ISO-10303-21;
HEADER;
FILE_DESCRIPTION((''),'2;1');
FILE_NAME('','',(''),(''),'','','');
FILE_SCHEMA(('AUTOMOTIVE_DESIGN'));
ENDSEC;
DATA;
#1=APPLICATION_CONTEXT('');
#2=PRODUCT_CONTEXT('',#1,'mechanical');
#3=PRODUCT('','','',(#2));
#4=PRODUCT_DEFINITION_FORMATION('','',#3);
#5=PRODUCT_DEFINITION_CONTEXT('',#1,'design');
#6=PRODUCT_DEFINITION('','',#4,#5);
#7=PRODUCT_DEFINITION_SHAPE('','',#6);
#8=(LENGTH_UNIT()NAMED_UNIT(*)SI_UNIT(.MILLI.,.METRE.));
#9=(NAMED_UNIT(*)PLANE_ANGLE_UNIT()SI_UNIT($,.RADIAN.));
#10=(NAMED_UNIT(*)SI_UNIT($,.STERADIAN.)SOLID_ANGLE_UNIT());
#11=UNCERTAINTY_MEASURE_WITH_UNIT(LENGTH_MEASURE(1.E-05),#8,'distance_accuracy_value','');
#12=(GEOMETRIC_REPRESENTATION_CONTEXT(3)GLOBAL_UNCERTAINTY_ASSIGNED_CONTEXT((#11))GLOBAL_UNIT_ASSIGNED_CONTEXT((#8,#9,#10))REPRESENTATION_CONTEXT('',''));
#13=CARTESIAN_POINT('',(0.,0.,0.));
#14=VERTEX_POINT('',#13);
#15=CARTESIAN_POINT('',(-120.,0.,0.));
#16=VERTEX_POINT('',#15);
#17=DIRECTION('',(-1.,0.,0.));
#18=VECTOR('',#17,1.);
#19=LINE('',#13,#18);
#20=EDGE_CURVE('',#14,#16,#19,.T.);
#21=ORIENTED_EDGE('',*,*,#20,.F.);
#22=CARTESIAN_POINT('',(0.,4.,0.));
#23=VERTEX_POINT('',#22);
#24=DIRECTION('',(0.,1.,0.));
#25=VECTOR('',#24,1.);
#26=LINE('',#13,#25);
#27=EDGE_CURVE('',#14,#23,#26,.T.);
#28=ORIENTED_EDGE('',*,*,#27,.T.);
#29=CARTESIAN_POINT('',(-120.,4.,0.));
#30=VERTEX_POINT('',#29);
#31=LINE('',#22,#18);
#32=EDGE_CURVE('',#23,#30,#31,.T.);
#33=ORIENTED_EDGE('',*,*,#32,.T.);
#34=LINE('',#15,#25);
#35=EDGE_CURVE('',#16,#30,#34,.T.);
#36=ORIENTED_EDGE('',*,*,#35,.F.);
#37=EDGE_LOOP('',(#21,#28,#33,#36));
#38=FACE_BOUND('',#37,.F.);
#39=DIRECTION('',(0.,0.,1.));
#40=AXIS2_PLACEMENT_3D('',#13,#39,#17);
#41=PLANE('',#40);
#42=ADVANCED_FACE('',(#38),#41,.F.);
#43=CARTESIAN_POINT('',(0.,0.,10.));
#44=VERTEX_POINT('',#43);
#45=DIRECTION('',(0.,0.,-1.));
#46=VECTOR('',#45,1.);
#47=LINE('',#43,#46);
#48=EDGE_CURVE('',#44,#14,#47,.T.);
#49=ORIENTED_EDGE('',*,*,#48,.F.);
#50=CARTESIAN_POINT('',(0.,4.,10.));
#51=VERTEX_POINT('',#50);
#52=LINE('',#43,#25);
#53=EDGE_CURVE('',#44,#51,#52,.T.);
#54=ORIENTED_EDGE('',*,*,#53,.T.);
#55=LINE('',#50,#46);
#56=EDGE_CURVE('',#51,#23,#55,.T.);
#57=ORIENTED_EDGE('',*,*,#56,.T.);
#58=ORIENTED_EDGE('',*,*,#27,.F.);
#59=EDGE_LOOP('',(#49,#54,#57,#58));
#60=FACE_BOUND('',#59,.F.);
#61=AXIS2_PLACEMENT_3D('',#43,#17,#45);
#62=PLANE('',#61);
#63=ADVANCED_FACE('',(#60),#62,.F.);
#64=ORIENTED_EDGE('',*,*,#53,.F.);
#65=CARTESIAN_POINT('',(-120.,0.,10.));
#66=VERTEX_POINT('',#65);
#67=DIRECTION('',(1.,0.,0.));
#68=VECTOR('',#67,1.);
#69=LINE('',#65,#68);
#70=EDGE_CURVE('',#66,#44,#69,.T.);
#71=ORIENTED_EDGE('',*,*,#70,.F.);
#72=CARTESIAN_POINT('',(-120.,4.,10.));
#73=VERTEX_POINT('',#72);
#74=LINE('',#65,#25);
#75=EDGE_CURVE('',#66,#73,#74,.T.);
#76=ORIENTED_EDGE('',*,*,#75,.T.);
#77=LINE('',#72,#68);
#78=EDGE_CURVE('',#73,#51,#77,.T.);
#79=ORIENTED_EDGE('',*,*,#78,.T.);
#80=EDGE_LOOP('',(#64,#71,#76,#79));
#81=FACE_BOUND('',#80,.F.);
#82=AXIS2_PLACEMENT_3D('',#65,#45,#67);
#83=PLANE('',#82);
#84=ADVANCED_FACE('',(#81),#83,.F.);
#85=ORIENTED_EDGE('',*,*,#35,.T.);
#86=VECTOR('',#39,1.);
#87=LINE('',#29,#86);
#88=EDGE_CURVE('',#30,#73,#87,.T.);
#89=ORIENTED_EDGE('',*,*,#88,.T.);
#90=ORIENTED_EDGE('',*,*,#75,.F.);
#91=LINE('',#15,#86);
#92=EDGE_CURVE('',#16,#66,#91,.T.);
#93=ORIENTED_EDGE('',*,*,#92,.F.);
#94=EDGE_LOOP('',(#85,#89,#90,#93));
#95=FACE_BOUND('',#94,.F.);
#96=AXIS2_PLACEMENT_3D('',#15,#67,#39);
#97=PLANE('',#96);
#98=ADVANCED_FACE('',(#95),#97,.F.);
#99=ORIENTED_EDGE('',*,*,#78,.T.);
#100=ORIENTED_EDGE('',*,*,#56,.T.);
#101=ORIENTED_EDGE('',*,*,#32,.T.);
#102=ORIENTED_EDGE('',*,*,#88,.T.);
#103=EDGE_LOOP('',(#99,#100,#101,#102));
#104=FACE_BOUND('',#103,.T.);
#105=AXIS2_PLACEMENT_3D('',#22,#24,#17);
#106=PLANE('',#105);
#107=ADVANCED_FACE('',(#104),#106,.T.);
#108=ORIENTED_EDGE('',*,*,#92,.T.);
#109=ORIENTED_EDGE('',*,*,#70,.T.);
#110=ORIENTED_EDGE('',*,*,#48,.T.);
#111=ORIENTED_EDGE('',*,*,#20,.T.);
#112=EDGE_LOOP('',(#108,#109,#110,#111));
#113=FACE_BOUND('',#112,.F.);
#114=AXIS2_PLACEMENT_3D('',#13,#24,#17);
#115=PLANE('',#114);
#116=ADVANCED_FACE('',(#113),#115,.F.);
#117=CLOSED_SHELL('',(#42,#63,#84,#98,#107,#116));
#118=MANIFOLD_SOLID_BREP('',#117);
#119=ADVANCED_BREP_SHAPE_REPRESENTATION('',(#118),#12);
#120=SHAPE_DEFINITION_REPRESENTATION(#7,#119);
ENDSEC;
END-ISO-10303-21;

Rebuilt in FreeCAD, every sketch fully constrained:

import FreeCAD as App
import Part
import Sketcher

V = App.Vector
Q = App.Units.Quantity

doc = App.newDocument("Part")
params = doc.addObject("Spreadsheet::Sheet", "Params")
for row, (alias, value) in enumerate([
    ("sketch1_width", "120 mm"),
    ("sketch1_height", "10 mm"),
    ("pad1_length", "4 mm"),
], start=1):
    params.set(f"A{row}", alias)
    params.set(f"B{row}", "=" + value)
    params.setAlias(f"B{row}", alias)

body = doc.addObject("PartDesign::Body", "Body")

# Sketch on XZ plane
sketch1 = body.newObject("Sketcher::SketchObject", "Sketch")
sketch1.AttachmentSupport = (doc.getObject("XZ_Plane"), [""])
sketch1.MapMode = "FlatFace"
sketch1.addGeometry(Part.LineSegment(V(0, 10, 0), V(0, 0, 0)), False)
sketch1.addGeometry(Part.LineSegment(V(0, 0, 0), V(-120, 0, 0)), False)
sketch1.addGeometry(Part.LineSegment(V(-120, 0, 0), V(-120, 10, 0)), False)
sketch1.addGeometry(Part.LineSegment(V(-120, 10, 0), V(0, 10, 0)), False)
sketch1.addConstraint(Sketcher.Constraint("Coincident", 0, 2, 1, 1))
sketch1.addConstraint(Sketcher.Constraint("Coincident", 1, 2, 2, 1))
sketch1.addConstraint(Sketcher.Constraint("Coincident", 2, 2, 3, 1))
sketch1.addConstraint(Sketcher.Constraint("Coincident", 3, 2, 0, 1))
sketch1.addConstraint(Sketcher.Constraint("Vertical", 0))
sketch1.addConstraint(Sketcher.Constraint("Horizontal", 1))
sketch1.addConstraint(Sketcher.Constraint("Vertical", 2))
sketch1.addConstraint(Sketcher.Constraint("Horizontal", 3))
sketch1.addConstraint(Sketcher.Constraint("Coincident", 0, 2, -1, 1))
sketch1.addConstraint(Sketcher.Constraint("DistanceX", 1, 2, 1, 1, Q("120 mm")))
sketch1.addConstraint(Sketcher.Constraint("DistanceY", 0, 2, 0, 1, Q("10 mm")))
sketch1.setExpression("Constraints[9]", "Params.sketch1_width")
sketch1.setExpression("Constraints[10]", "Params.sketch1_height")
pad1 = body.newObject("PartDesign::Pad", "Pad")
pad1.Profile = sketch1
pad1.setExpression("Length", "Params.pad1_length")
pad1.Reversed = True

doc.recompute()
